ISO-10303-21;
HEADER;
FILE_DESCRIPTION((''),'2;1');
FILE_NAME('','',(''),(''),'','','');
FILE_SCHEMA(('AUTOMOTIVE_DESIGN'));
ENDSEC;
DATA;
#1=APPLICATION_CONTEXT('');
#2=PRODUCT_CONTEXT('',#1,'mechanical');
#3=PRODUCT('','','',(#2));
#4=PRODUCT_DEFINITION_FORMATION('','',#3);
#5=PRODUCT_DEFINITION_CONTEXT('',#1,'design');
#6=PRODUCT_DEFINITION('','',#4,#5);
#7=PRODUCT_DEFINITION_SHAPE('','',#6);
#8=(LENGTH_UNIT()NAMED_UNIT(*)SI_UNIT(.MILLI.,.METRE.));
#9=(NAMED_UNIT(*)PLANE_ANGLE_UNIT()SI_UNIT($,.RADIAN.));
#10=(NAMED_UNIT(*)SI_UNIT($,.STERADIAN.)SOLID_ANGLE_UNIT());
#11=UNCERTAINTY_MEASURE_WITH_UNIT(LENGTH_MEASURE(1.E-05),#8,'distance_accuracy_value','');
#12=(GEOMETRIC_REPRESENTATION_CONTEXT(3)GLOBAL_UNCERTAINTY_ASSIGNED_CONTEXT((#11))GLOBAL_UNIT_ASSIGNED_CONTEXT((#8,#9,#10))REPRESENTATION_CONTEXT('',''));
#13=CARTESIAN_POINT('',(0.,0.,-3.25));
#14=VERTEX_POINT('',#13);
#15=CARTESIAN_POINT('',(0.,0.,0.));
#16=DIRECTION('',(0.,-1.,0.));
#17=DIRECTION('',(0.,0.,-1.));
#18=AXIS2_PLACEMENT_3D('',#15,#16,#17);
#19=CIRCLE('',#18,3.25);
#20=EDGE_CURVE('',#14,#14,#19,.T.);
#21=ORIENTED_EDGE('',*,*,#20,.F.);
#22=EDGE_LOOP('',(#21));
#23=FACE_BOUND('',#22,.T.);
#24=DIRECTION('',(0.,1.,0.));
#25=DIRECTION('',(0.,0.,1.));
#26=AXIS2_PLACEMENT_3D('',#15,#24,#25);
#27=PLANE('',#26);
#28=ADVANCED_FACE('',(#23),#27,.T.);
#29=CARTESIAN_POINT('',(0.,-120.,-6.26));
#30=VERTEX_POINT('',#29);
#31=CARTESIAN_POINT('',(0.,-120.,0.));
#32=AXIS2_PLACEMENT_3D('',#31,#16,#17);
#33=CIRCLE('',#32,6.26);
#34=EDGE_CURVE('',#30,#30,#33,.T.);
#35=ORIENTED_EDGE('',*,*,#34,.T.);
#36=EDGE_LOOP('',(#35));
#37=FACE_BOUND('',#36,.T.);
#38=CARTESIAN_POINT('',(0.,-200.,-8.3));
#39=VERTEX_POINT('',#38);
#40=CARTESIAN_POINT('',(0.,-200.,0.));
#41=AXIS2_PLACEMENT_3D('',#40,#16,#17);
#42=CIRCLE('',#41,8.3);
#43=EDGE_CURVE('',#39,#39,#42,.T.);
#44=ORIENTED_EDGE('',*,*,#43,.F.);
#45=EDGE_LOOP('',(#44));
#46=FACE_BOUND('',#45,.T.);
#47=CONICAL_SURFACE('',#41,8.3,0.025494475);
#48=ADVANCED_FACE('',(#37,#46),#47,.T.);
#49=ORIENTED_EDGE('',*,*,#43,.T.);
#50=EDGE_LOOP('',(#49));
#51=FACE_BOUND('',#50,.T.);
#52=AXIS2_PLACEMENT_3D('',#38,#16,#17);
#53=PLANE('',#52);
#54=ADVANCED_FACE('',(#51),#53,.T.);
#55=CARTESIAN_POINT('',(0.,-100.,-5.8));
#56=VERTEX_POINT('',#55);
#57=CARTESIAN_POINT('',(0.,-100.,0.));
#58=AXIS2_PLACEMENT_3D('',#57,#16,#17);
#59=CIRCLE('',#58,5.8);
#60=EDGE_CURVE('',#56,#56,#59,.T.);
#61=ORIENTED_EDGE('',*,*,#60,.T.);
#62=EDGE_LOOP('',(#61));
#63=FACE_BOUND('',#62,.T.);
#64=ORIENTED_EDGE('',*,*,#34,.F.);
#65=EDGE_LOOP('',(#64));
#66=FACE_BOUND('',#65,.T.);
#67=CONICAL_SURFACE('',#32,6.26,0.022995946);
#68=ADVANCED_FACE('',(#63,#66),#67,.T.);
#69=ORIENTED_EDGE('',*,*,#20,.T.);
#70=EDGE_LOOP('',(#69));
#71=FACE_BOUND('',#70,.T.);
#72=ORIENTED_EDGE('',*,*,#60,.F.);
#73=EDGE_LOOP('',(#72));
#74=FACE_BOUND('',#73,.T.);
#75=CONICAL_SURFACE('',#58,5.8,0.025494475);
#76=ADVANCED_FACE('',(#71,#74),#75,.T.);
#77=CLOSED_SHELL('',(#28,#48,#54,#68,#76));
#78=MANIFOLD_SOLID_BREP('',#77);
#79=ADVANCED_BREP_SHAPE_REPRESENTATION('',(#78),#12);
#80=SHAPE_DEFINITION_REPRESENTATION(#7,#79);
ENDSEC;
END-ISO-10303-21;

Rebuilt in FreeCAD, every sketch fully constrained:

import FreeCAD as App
import Part
import Sketcher

V = App.Vector

doc = App.newDocument("Part")
params = doc.addObject("Spreadsheet::Sheet", "Params")
for row, (alias, value) in enumerate([
    ("sketch1_width", "200 mm"),
    ("sketch1_height", "8.3 mm"),
    ("sketch1_height2", "3.25 mm"),
    ("revolution_angle", "360 deg"),
], start=1):
    params.set(f"A{row}", alias)
    params.set(f"B{row}", "=" + value)
    params.setAlias(f"B{row}", alias)

body = doc.addObject("PartDesign::Body", "Body")

# Sketch on YZ plane
sketch1 = body.newObject("Sketcher::SketchObject", "Sketch")
sketch1.AttachmentSupport = (doc.getObject("YZ_Plane"), [""])
sketch1.MapMode = "FlatFace"
sketch1.addGeometry(Part.LineSegment(V(0, -3.2, 0), V(0, 0, 0)), False)
sketch1.addGeometry(Part.LineSegment(V(0, 0, 0), V(-200, 0, 0)), False)
sketch1.addGeometry(Part.LineSegment(V(-200, 0, 0), V(-200, -8.3, 0)), False)
sketch1.addGeometry(Part.LineSegment(V(-200, -8.3, 0), V(-120, -6.3, 0)), False)
sketch1.addGeometry(Part.LineSegment(V(-120, -6.3, 0), V(-100, -5.8, 0)), False)
sketch1.addGeometry(Part.LineSegment(V(-100, -5.8, 0), V(0, -3.2, 0)), False)
sketch1.addConstraint(Sketcher.Constraint("Coincident", 0, 2, 1, 1))
sketch1.addConstraint(Sketcher.Constraint("Coincident", 1, 2, 2, 1))
sketch1.addConstraint(Sketcher.Constraint("Coincident", 2, 2, 3, 1))
sketch1.addConstraint(Sketcher.Constraint("Coincident", 3, 2, 4, 1))
sketch1.addConstraint(Sketcher.Constraint("Coincident", 4, 2, 5, 1))
sketch1.addConstraint(Sketcher.Constraint("Coincident", 5, 2, 0, 1))
sketch1.addConstraint(Sketcher.Constraint("Vertical", 0))
sketch1.addConstraint(Sketcher.Constraint("Horizontal", 1))
sketch1.addConstraint(Sketcher.Constraint("Vertical", 2))
sketch1.addConstraint(Sketcher.Constraint("Coincident", 0, 2, -1, 1))
sketch1.addConstraint(Sketcher.Constraint("Parallel", 3, 5))
sketch1.addConstraint(Sketcher.Constraint("DistanceX", 1, 2, 1, 1, 200.0))
sketch1.addConstraint(Sketcher.Constraint("DistanceY", 2, 2, 2, 1, 8.3))
sketch1.addConstraint(Sketcher.Constraint("DistanceX", 3, 2, -1, 1, 120.0))
sketch1.addConstraint(Sketcher.Constraint("DistanceX", 4, 2, -1, 1, 100.0))
sketch1.addConstraint(Sketcher.Constraint("DistanceY", 0, 1, 0, 2, 3.25))
sketch1.addConstraint(Sketcher.Constraint("DistanceY", 4, 2, -1, 1, 5.8))
sketch1.setExpression("Constraints[11]", "Params.sketch1_width")
sketch1.setExpression("Constraints[12]", "Params.sketch1_height")
sketch1.setExpression("Constraints[15]", "Params.sketch1_height2")
revolution = body.newObject("PartDesign::Revolution", "Revolution")
revolution.Profile = sketch1
revolution.ReferenceAxis = (sketch1, ["H_Axis"])
revolution.setExpression("Angle", "Params.revolution_angle")

doc.recompute()
